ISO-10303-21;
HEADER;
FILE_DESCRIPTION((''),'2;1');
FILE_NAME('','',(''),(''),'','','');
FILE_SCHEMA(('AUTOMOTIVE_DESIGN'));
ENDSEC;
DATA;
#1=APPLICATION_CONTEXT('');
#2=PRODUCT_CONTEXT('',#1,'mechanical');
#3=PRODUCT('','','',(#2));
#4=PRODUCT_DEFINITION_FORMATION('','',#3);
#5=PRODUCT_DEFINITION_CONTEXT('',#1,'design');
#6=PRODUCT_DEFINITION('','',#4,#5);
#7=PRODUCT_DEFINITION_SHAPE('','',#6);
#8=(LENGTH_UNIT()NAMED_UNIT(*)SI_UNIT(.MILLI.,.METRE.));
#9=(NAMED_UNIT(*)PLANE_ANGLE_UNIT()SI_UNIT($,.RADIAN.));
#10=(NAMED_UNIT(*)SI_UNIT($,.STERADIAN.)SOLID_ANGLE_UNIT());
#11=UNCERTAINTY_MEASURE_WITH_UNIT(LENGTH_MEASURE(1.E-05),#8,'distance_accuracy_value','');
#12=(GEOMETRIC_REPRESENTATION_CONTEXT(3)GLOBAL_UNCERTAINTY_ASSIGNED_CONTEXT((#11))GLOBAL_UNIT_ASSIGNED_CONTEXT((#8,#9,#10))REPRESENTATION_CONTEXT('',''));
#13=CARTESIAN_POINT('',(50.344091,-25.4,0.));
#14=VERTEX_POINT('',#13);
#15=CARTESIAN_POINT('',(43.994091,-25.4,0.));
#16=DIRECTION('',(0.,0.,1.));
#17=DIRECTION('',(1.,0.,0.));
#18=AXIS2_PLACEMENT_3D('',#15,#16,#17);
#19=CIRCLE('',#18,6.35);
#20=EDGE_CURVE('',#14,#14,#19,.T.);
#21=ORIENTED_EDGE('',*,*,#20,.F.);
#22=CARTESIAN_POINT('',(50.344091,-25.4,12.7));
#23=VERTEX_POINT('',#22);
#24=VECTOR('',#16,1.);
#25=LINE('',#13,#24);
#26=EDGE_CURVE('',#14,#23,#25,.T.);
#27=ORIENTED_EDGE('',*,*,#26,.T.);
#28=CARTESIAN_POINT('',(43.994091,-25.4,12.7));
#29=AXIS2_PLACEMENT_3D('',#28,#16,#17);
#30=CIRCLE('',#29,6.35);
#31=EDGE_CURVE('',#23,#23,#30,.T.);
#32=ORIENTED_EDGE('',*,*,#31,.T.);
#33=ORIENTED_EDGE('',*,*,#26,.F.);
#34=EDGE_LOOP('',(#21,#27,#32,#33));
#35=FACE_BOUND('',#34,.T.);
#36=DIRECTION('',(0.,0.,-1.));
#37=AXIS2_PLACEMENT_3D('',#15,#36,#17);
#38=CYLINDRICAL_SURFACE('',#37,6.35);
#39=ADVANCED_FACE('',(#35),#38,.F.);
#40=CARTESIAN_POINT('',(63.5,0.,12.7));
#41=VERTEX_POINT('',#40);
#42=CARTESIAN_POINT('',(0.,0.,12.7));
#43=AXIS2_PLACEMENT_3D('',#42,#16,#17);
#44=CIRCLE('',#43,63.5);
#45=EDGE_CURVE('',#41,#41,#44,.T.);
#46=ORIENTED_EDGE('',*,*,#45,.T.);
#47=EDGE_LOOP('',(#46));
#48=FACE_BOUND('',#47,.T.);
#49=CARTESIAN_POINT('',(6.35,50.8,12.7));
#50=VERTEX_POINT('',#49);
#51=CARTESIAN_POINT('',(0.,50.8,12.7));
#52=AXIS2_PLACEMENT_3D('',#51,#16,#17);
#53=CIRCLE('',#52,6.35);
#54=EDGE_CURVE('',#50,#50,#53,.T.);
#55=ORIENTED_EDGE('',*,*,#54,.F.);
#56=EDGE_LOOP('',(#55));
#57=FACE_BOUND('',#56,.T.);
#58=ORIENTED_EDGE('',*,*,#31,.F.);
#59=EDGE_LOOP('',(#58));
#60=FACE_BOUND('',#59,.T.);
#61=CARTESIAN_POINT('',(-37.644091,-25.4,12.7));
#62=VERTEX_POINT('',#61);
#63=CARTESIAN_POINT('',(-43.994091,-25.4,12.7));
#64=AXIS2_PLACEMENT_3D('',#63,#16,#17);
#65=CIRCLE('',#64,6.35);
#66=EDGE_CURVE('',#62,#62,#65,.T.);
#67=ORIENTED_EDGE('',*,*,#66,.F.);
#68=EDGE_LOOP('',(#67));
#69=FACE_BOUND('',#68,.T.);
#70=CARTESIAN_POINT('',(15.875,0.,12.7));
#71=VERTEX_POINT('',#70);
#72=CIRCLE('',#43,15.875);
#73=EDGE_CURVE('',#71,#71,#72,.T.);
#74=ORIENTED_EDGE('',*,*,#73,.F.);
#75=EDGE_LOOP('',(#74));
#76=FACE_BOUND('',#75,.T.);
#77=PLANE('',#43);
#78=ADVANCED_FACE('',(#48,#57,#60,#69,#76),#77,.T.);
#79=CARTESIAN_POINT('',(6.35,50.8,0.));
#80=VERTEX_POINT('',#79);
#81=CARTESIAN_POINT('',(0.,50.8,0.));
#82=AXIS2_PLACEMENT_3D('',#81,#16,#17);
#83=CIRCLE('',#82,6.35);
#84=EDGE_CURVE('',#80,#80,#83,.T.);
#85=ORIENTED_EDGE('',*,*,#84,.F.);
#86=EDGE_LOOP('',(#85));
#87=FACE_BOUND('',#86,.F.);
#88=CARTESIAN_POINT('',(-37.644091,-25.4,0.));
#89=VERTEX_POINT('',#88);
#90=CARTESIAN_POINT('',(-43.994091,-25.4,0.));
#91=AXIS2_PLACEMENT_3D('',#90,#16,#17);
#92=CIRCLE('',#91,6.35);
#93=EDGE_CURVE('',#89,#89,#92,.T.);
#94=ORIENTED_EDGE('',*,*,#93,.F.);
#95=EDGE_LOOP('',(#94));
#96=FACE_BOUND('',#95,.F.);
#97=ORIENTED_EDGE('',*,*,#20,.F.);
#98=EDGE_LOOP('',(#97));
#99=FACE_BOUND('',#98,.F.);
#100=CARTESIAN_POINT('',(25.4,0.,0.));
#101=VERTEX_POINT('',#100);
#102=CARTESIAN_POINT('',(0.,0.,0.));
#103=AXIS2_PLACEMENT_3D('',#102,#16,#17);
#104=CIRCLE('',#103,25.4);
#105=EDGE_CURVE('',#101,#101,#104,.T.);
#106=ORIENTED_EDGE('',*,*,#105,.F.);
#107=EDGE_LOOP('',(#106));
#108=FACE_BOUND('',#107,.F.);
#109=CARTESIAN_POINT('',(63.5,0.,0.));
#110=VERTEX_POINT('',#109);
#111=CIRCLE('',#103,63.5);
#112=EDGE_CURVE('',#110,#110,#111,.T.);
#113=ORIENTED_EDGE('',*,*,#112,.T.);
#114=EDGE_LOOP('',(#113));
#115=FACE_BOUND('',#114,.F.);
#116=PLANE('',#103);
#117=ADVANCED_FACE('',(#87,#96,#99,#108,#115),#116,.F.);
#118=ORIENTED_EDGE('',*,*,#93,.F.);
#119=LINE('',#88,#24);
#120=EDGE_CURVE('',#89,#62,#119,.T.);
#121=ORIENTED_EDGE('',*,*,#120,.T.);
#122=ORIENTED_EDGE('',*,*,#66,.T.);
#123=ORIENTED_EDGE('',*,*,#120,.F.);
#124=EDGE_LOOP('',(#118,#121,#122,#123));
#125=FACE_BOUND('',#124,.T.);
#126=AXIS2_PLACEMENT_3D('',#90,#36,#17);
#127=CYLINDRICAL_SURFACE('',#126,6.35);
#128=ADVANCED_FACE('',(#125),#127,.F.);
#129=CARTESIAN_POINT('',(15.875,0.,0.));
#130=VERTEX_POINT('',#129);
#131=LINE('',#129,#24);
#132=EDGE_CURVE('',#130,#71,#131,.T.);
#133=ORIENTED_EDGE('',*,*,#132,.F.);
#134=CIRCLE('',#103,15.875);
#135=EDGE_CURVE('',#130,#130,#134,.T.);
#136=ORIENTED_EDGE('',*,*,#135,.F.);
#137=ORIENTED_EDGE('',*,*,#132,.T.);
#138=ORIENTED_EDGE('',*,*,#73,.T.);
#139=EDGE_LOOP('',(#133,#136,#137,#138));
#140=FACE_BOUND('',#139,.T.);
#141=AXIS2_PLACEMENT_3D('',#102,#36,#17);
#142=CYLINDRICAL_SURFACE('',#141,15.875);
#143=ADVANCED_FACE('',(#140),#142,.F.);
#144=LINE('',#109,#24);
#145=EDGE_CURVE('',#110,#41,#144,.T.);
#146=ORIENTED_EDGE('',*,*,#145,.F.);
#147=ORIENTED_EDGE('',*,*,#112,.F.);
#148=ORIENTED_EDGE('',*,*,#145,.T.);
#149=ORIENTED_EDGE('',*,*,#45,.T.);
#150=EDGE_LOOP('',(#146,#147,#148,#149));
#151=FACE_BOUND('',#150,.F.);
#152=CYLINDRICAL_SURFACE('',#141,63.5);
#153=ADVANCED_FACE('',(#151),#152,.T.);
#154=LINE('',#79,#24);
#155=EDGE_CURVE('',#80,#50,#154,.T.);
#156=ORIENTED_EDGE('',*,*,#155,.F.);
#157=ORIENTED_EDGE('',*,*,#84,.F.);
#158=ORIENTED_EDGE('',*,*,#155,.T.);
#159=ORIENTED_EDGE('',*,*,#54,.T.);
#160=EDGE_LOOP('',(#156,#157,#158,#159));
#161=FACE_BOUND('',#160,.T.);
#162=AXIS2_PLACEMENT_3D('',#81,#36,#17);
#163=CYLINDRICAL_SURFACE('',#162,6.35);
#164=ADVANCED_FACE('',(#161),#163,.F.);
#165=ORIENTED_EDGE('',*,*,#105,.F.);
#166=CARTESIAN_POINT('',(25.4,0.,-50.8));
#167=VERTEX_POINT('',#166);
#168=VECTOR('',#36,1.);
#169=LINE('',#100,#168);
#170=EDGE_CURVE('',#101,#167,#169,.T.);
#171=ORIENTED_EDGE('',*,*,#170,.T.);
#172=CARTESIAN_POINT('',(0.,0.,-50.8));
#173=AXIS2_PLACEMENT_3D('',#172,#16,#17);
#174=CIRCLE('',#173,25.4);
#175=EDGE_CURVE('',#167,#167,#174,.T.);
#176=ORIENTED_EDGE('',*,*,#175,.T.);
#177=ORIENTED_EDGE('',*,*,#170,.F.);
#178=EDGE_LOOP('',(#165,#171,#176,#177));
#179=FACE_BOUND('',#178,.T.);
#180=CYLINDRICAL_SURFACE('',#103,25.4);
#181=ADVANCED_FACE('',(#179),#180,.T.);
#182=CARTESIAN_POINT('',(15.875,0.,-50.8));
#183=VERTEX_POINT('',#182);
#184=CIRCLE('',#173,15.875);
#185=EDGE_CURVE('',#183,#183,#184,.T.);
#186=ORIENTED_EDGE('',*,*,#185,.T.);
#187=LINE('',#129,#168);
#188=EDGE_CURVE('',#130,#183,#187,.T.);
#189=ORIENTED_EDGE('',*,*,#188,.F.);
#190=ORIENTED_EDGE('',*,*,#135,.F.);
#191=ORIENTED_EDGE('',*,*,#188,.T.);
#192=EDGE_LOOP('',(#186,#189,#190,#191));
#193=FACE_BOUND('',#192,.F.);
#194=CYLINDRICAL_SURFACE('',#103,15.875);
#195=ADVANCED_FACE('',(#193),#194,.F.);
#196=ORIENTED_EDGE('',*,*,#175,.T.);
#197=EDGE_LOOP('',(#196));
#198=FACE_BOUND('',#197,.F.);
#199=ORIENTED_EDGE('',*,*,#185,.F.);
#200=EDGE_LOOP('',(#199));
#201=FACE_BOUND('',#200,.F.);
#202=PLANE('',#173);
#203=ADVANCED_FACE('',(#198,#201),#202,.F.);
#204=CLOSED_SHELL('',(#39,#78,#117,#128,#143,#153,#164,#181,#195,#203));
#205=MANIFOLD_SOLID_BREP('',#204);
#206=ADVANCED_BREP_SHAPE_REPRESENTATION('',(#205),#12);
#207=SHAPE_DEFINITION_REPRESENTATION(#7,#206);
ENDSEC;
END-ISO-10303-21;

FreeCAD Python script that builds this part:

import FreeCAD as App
import Part
import Sketcher
Q = App.Units.Quantity

doc = App.newDocument("Part")
body = doc.addObject("PartDesign::Body", "Body")

sketch1 = body.newObject("Sketcher::SketchObject", "Sketch")
sketch1.AttachmentSupport = (doc.getObject("XY_Plane"), [""])
sketch1.MapMode = "FlatFace"
sketch1.addGeometry(Part.Circle(App.Vector(0, 0, 0), App.Vector(0, 0, 1), 64), False)
sketch1.addGeometry(Part.Circle(App.Vector(-44, -25, 0), App.Vector(0, 0, 1), 6), False)
sketch1.addGeometry(Part.Circle(App.Vector(44, -25, 0), App.Vector(0, 0, 1), 6), False)
sketch1.addGeometry(Part.Circle(App.Vector(0, 0, 0), App.Vector(0, 0, 1), 16), False)
sketch1.addGeometry(Part.Circle(App.Vector(0, 51, 0), App.Vector(0, 0, 1), 6), False)
sketch1.addConstraint(Sketcher.Constraint("Coincident", 0, 3, -1, 1))
sketch1.addConstraint(Sketcher.Constraint("Coincident", 3, 3, -1, 1))
sketch1.addConstraint(Sketcher.Constraint("Equal", 1, 2))
sketch1.addConstraint(Sketcher.Constraint("Equal", 2, 4))
sketch1.addConstraint(Sketcher.Constraint("Symmetric", 1, 3, 2, 3, -2))
sketch1.addConstraint(Sketcher.Constraint("PointOnObject", 4, 3, -2))
sketch1.addConstraint(Sketcher.Constraint("Diameter", 0, Q("5 in")))
sketch1.addConstraint(Sketcher.Constraint("Diameter", 1, Q("0.5 in")))
sketch1.addConstraint(Sketcher.Constraint("Diameter", 3, Q("1.25 in")))
sketch1.addConstraint(Sketcher.Constraint("DistanceY", 1, 3, -1, 1, Q("1 in")))
sketch1.addConstraint(Sketcher.Constraint("DistanceY", -1, 1, 4, 3, Q("2 in")))
sketch1.addConstraint(Sketcher.Constraint("DistanceX", 1, 3, -1, 1, 43.994091))
pad1 = body.newObject("PartDesign::Pad", "Pad")
pad1.Profile = sketch1
pad1.Length = Q("0.5 in")

sketch2 = body.newObject("Sketcher::SketchObject", "Sketch001")
sketch2.AttachmentSupport = (doc.getObject("XY_Plane"), [""])
sketch2.MapMode = "FlatFace"
sketch2.addGeometry(Part.Circle(App.Vector(0, 0, 0), App.Vector(0, 0, 1), 25), False)
sketch2.addGeometry(Part.Circle(App.Vector(0, 0, 0), App.Vector(0, 0, 1), 16), False)
sketch2.addConstraint(Sketcher.Constraint("Coincident", 0, 3, -1, 1))
sketch2.addConstraint(Sketcher.Constraint("Coincident", 1, 3, -1, 1))
sketch2.addConstraint(Sketcher.Constraint("Diameter", 0, Q("2 in")))
sketch2.addConstraint(Sketcher.Constraint("Diameter", 1, Q("1.25 in")))
pad2 = body.newObject("PartDesign::Pad", "Pad001")
pad2.Profile = sketch2
pad2.Length = Q("2 in")
pad2.Reversed = True

doc.recompute()
